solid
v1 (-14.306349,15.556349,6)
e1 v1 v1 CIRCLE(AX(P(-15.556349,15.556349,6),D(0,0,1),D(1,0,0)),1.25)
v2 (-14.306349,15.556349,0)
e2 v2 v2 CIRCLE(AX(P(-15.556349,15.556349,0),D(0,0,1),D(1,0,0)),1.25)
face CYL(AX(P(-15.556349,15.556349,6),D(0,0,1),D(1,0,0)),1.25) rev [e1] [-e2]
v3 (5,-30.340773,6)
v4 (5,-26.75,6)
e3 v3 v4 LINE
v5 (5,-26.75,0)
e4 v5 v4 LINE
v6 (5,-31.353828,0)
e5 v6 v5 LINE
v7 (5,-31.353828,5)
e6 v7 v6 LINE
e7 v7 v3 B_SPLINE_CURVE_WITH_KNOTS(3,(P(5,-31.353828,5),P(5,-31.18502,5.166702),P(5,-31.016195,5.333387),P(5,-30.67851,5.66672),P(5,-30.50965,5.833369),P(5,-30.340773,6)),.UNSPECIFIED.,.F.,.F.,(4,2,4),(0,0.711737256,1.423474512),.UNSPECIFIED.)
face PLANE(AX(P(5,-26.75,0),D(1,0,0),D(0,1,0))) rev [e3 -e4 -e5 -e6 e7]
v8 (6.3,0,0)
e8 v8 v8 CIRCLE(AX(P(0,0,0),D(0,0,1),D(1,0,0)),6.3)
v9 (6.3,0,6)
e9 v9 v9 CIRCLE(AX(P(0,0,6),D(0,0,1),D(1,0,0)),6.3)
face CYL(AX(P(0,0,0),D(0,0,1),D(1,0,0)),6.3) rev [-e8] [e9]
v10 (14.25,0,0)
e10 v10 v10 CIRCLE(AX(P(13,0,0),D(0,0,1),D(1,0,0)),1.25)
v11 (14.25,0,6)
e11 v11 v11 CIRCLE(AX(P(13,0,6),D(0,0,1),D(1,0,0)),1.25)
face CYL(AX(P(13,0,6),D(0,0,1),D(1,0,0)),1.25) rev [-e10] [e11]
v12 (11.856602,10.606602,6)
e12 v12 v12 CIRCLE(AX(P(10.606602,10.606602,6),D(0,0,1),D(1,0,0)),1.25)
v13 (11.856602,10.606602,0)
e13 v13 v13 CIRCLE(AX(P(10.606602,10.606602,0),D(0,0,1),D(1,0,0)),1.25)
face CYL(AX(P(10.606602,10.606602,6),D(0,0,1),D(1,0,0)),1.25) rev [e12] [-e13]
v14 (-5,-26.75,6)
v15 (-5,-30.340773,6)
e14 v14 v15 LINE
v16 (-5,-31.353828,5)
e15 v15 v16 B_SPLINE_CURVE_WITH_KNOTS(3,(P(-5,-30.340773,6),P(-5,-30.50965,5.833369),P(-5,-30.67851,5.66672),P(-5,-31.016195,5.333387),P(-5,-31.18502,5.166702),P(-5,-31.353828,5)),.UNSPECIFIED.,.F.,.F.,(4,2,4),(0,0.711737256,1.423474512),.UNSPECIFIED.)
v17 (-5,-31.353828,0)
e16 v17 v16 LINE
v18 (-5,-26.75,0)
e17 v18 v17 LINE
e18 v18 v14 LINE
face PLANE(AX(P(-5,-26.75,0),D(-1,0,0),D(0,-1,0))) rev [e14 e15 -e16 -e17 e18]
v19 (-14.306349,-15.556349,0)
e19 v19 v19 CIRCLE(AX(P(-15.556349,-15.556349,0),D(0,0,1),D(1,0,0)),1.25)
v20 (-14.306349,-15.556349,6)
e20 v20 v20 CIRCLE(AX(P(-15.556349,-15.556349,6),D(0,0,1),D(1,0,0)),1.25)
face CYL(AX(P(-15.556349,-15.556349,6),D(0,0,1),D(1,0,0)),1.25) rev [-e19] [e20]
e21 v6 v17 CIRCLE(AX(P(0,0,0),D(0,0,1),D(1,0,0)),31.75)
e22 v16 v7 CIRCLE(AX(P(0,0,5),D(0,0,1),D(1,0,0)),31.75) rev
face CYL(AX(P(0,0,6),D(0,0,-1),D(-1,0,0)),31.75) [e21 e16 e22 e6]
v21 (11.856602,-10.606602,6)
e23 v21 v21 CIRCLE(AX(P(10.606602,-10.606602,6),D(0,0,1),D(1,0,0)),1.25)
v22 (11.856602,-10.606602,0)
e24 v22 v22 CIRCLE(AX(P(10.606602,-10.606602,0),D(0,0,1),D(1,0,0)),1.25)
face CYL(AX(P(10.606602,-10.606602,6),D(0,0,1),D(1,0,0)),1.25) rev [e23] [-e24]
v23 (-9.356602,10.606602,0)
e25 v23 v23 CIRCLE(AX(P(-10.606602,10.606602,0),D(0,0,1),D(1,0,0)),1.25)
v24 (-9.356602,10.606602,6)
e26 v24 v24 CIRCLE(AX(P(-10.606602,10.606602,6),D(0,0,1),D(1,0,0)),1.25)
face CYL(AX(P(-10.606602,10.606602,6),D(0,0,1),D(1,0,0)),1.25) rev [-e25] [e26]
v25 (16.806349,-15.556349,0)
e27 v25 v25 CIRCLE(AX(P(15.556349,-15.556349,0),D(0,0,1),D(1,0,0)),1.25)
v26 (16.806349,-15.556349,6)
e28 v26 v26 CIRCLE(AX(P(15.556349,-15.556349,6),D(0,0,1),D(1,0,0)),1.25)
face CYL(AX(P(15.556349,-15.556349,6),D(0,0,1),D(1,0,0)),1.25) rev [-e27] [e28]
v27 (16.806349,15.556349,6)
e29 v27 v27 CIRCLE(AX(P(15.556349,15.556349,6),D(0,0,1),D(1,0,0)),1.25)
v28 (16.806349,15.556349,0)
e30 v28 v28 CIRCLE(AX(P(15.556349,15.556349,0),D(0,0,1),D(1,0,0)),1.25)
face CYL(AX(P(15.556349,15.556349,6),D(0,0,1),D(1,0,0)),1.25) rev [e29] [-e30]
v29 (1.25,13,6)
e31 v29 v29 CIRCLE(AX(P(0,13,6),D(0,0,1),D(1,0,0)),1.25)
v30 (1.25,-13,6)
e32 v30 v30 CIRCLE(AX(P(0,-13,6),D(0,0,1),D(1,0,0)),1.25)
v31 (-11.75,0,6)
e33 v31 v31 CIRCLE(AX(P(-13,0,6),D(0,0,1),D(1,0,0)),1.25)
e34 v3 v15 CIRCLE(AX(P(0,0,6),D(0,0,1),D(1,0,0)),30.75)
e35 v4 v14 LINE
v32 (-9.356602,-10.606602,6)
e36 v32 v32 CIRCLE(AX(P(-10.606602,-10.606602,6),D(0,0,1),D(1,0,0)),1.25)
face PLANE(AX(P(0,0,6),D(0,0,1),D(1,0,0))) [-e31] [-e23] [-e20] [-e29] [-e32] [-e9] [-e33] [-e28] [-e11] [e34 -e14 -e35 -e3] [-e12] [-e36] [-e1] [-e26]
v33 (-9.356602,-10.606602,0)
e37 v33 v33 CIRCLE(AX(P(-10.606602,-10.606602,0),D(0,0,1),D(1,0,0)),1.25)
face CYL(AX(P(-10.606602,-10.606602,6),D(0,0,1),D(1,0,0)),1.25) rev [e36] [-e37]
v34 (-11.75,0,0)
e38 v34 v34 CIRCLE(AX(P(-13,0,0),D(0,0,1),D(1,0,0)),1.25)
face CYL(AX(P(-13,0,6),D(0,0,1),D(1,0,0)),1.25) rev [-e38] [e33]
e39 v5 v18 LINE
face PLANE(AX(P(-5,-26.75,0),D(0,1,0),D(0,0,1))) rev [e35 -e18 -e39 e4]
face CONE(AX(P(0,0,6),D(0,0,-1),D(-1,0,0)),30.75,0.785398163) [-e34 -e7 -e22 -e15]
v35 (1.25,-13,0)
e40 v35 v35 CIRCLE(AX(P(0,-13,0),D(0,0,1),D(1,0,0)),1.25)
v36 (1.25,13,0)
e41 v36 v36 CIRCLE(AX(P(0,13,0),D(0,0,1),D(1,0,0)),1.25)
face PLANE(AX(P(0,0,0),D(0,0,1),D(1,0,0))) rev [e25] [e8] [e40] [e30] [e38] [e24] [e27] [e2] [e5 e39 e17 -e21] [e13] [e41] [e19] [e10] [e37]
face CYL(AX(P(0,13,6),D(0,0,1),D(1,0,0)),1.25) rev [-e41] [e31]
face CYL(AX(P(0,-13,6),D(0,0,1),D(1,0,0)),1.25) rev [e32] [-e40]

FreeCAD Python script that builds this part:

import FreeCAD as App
import Part
import Sketcher

V = App.Vector
Q = App.Units.Quantity


def edges_at(feature, points):
    """Names of the edges that pass closest to the given points."""
    edges = feature.Shape.Edges
    near = lambda p: min(range(len(edges)), key=lambda i: edges[i].distToShape(Part.Vertex(*p))[0])
    return sorted({f"Edge{near(p) + 1}" for p in points})


def add_polygon(sketch, points):
    """Adds a closed chain of lines whose ends are joined by coincident constraints."""
    first, n = sketch.GeometryCount, len(points)
    for a, b in zip(points, points[1:] + points[:1]):
        sketch.addGeometry(Part.LineSegment(App.Vector(*a, 0), App.Vector(*b, 0)), False)
    for i in range(n):
        sketch.addConstraint(Sketcher.Constraint("Coincident", first + i, 2, first + (i + 1) % n, 1))

doc = App.newDocument("Part")
body = doc.addObject("PartDesign::Body", "Body")

# Sketch on XY plane
sketch1 = body.newObject("Sketcher::SketchObject", "Sketch")
sketch1.AttachmentSupport = (doc.getObject("XY_Plane"), [""])
sketch1.MapMode = "FlatFace"
sketch1.addGeometry(Part.Circle(V(0, 0, 0), V(0, 0, 1), 32), False)
sketch1.addConstraint([
    Sketcher.Constraint("Coincident", 0, 3, -1, 1),
    Sketcher.Constraint("Diameter", 0, Q("63.5 mm")),
])
pad1 = body.newObject("PartDesign::Pad", "Pad")
pad1.Profile = sketch1
pad1.Length = 6

# Sketch on XY plane
sketch2 = body.newObject("Sketcher::SketchObject", "Sketch001")
sketch2.AttachmentSupport = (doc.getObject("XY_Plane"), [""])
sketch2.MapMode = "FlatFace"
sketch2.AttachmentOffset = App.Placement(V(0, 0, 6), App.Rotation())
add_polygon(sketch2, [(-5, -27), (-5, -37), (5, -37), (5, -27)])  # lines 0-3
sketch2.addConstraint([
    Sketcher.Constraint("Vertical", 0),
    Sketcher.Constraint("Horizontal", 1),
    Sketcher.Constraint("Vertical", 2),
    Sketcher.Constraint("Horizontal", 3),
    Sketcher.Constraint("Equal", 3, 0),
    Sketcher.Constraint("DistanceX", 1, 1, 1, 2, Q("10 mm")),
    Sketcher.Constraint("DistanceX", 0, 2, -1, 1, Q("5 mm")),
    Sketcher.Constraint("DistanceY", 0, 2, -1, 1, Q("36.75 mm")),
])
pocket1 = body.newObject("PartDesign::Pocket", "Pocket")
pocket1.Profile = sketch2
pocket1.Type = "ThroughAll"

# Sketch on XY plane
sketch3 = body.newObject("Sketcher::SketchObject", "Sketch002")
sketch3.AttachmentSupport = (doc.getObject("XY_Plane"), [""])
sketch3.MapMode = "FlatFace"
sketch3.AttachmentOffset = App.Placement(V(0, 0, 6), App.Rotation())
sketch3.addGeometry([
    Part.Circle(V(0, 13, 0), V(0, 0, 1), 1.2),
    Part.Circle(V(13, 0, 0), V(0, 0, 1), 1.2),
    Part.Circle(V(-13, 0, 0), V(0, 0, 1), 1.2),
    Part.Circle(V(0, -13, 0), V(0, 0, 1), 1.2),
], False)
sketch3.addConstraint([
    Sketcher.Constraint("Equal", 0, 1),
    Sketcher.Constraint("Equal", 1, 2),
    Sketcher.Constraint("Equal", 2, 3),
    Sketcher.Constraint("Symmetric", 1, 3, 2, 3, -1, 1),
    Sketcher.Constraint("Symmetric", 0, 3, 3, 3, -1, 1),
    Sketcher.Constraint("PointOnObject", 0, 3, -2),
    Sketcher.Constraint("PointOnObject", 1, 3, -1),
    Sketcher.Constraint("Diameter", 0, Q("2.5 mm")),
    Sketcher.Constraint("DistanceY", -1, 1, 0, 3, Q("13 mm")),
    Sketcher.Constraint("DistanceX", -1, 1, 1, 3, Q("13 mm")),
])
doc.recompute()
hole = body.newObject("PartDesign::Hole", "Hole")
hole.Profile = sketch3
hole.ThreadType = "None"
hole.Diameter = 2.5
hole.DepthType = "ThroughAll"

# Sketch on XY plane
sketch4 = body.newObject("Sketcher::SketchObject", "Sketch003")
sketch4.AttachmentSupport = (doc.getObject("XY_Plane"), [""])
sketch4.MapMode = "FlatFace"
sketch4.AttachmentOffset = App.Placement(V(0, 0, 6), App.Rotation())
sketch4.addGeometry([
    Part.Circle(V(-15.6, 15.6, 0), V(0, 0, 1), 1.2),  # 0
    Part.Circle(V(-15.6, -15.6, 0), V(0, 0, 1), 1.2),  # 1
    Part.Circle(V(15.6, -15.6, 0), V(0, 0, 1), 1.2),  # 2
    Part.Circle(V(15.6, 15.6, 0), V(0, 0, 1), 1.2),  # 3
    Part.Circle(V(10.6, 10.6, 0), V(0, 0, 1), 1.2),  # 4
    Part.Circle(V(-10.6, 10.6, 0), V(0, 0, 1), 1.2),  # 5
    Part.Circle(V(-10.6, -10.6, 0), V(0, 0, 1), 1.2),  # 6
    Part.Circle(V(10.6, -10.6, 0), V(0, 0, 1), 1.2),  # 7
], False)
sketch4.addConstraint([
    Sketcher.Constraint("Equal", 0, 1),
    Sketcher.Constraint("Equal", 1, 2),
    Sketcher.Constraint("Equal", 2, 3),
    Sketcher.Constraint("Equal", 3, 4),
    Sketcher.Constraint("Equal", 4, 5),
    Sketcher.Constraint("Equal", 5, 6),
    Sketcher.Constraint("Equal", 6, 7),
    Sketcher.Constraint("Symmetric", 0, 3, 2, 3, -1, 1),
    Sketcher.Constraint("Symmetric", 1, 3, 3, 3, -1, 1),
    Sketcher.Constraint("Symmetric", 4, 3, 6, 3, -1, 1),
    Sketcher.Constraint("Symmetric", 5, 3, 7, 3, -1, 1),
    Sketcher.Constraint("Symmetric", 1, 3, 2, 3, -2),
    Sketcher.Constraint("Symmetric", 4, 3, 5, 3, -2),
    Sketcher.Constraint("Diameter", 0, Q("2.5 mm")),
    Sketcher.Constraint("DistanceX", -1, 1, 4, 3, Q("10.606602 mm")),
    Sketcher.Constraint("DistanceY", -1, 1, 4, 3, Q("10.606602 mm")),
    Sketcher.Constraint("DistanceY", 1, 3, 0, 3, Q("31.112698 mm")),
    Sketcher.Constraint("DistanceX", 1, 3, 2, 3, Q("31.112698 mm")),
])
doc.recompute()
hole2 = body.newObject("PartDesign::Hole", "Hole001")
hole2.Profile = sketch4
hole2.ThreadType = "None"
hole2.Diameter = 2.5
hole2.DepthType = "ThroughAll"

# Sketch on XY plane
sketch5 = body.newObject("Sketcher::SketchObject", "Sketch004")
sketch5.AttachmentSupport = (doc.getObject("XY_Plane"), [""])
sketch5.MapMode = "FlatFace"
sketch5.AttachmentOffset = App.Placement(V(0, 0, 6), App.Rotation())
sketch5.addGeometry(Part.Circle(V(0, 0, 0), V(0, 0, 1), 6), False)
sketch5.addConstraint([
    Sketcher.Constraint("Coincident", 0, 3, -1, 1),
    Sketcher.Constraint("Diameter", 0, Q("12.6 mm")),
])
pocket2 = body.newObject("PartDesign::Pocket", "Pocket001")
pocket2.Profile = sketch5
pocket2.Type = "ThroughAll"
doc.recompute()

chamfer = body.newObject("PartDesign::Chamfer", "Chamfer")
chamfer.Base = (pocket2, edges_at(pocket2, [(0, 31.75, 6)]))
chamfer.Size = 1

doc.recompute()
